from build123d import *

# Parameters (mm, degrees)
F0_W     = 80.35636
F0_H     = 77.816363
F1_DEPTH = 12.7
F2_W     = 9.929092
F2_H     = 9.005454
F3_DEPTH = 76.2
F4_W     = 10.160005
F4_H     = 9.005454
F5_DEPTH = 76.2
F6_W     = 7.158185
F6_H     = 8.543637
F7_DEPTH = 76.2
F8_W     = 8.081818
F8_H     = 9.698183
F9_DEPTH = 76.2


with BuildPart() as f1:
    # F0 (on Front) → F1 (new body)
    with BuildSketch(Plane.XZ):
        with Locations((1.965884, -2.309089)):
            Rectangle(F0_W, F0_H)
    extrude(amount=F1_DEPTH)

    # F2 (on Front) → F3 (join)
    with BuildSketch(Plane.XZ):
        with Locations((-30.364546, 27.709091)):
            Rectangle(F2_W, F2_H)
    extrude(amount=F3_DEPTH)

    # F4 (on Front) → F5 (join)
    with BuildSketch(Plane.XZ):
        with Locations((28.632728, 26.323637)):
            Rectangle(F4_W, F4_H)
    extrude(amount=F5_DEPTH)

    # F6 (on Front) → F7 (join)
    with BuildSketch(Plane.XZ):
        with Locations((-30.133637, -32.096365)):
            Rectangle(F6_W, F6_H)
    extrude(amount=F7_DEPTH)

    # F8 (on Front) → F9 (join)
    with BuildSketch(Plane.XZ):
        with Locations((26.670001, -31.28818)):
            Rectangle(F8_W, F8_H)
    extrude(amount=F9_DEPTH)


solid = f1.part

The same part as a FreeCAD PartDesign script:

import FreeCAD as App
import Part
import Sketcher
Q = App.Units.Quantity


def add_polygon(sketch, points):
    """Adds a closed chain of lines whose ends are joined by coincident constraints."""
    first, n = sketch.GeometryCount, len(points)
    for a, b in zip(points, points[1:] + points[:1]):
        sketch.addGeometry(Part.LineSegment(App.Vector(*a, 0), App.Vector(*b, 0)), False)
    for i in range(n):
        sketch.addConstraint(Sketcher.Constraint("Coincident", first + i, 2, first + (i + 1) % n, 1))

doc = App.newDocument("Part")
params = doc.addObject("Spreadsheet::Sheet", "Params")
for row, (alias, value) in enumerate([
    ("pad1_length", "0.5 in"),
    ("pad2_length", "3 in"),
    ("sketch3_width", "0.4000002 in"),
    ("pad3_length", "3 in"),
    ("pad4_length", "3 in"),
    ("pad5_length", "3 in"),
], start=1):
    params.set(f"A{row}", alias)
    params.set(f"B{row}", "=" + value)
    params.setAlias(f"B{row}", alias)

body = doc.addObject("PartDesign::Body", "Body")

sketch1 = body.newObject("Sketcher::SketchObject", "Sketch")
sketch1.AttachmentSupport = (doc.getObject("XZ_Plane"), [""])
sketch1.MapMode = "FlatFace"
add_polygon(sketch1, [(-38, 37), (-38, -41), (42, -41), (42, 37)])
sketch1.addConstraint(Sketcher.Constraint("Vertical", 0))
sketch1.addConstraint(Sketcher.Constraint("Horizontal", 1))
sketch1.addConstraint(Sketcher.Constraint("Vertical", 2))
sketch1.addConstraint(Sketcher.Constraint("Horizontal", 3))
sketch1.addConstraint(Sketcher.Constraint("DistanceX", 1, 1, 1, 2, 80.35636))
sketch1.addConstraint(Sketcher.Constraint("DistanceY", 0, 2, 0, 1, 77.816363))
sketch1.addConstraint(Sketcher.Constraint("DistanceY", 0, 2, -1, 1, 41.21727))
sketch1.addConstraint(Sketcher.Constraint("DistanceX", 0, 2, -1, 1, 38.212296))
pad1 = body.newObject("PartDesign::Pad", "Pad")
pad1.Profile = sketch1
pad1.setExpression("Length", "Params.pad1_length")

sketch2 = body.newObject("Sketcher::SketchObject", "Sketch001")
sketch2.AttachmentSupport = (doc.getObject("XZ_Plane"), [""])
sketch2.MapMode = "FlatFace"
add_polygon(sketch2, [(-35, 32), (-35, 23), (-25, 23), (-25, 32)])
sketch2.addConstraint(Sketcher.Constraint("Vertical", 0))
sketch2.addConstraint(Sketcher.Constraint("Horizontal", 1))
sketch2.addConstraint(Sketcher.Constraint("Vertical", 2))
sketch2.addConstraint(Sketcher.Constraint("Horizontal", 3))
sketch2.addConstraint(Sketcher.Constraint("DistanceX", 1, 2, -1, 1, Q("1 in")))
sketch2.addConstraint(Sketcher.Constraint("DistanceX", 1, 1, 1, 2, 9.929092))
sketch2.addConstraint(Sketcher.Constraint("DistanceY", 0, 2, 0, 1, 9.005454))
sketch2.addConstraint(Sketcher.Constraint("DistanceY", -1, 1, 0, 2, 23.206364))
pad2 = body.newObject("PartDesign::Pad", "Pad001")
pad2.Profile = sketch2
pad2.setExpression("Length", "Params.pad2_length")

sketch3 = body.newObject("Sketcher::SketchObject", "Sketch002")
sketch3.AttachmentSupport = (doc.getObject("XZ_Plane"), [""])
sketch3.MapMode = "FlatFace"
add_polygon(sketch3, [(24, 31), (24, 22), (34, 22), (34, 31)])
sketch3.addConstraint(Sketcher.Constraint("Vertical", 0))
sketch3.addConstraint(Sketcher.Constraint("Horizontal", 1))
sketch3.addConstraint(Sketcher.Constraint("Vertical", 2))
sketch3.addConstraint(Sketcher.Constraint("Horizontal", 3))
sketch3.addConstraint(Sketcher.Constraint("DistanceX", 1, 1, 1, 2, Q("0.4000002 in")))
sketch3.addConstraint(Sketcher.Constraint("DistanceY", 0, 2, 0, 1, 9.005454))
sketch3.addConstraint(Sketcher.Constraint("DistanceY", -1, 1, 0, 2, 21.82091))
sketch3.addConstraint(Sketcher.Constraint("DistanceX", -1, 1, 1, 2, 33.71273))
sketch3.setExpression("Constraints[8]", "Params.sketch3_width")
pad3 = body.newObject("PartDesign::Pad", "Pad002")
pad3.Profile = sketch3
pad3.setExpression("Length", "Params.pad3_length")

sketch4 = body.newObject("Sketcher::SketchObject", "Sketch003")
sketch4.AttachmentSupport = (doc.getObject("XZ_Plane"), [""])
sketch4.MapMode = "FlatFace"
add_polygon(sketch4, [(-34, -28), (-34, -36), (-27, -36), (-27, -28)])
sketch4.addConstraint(Sketcher.Constraint("Vertical", 0))
sketch4.addConstraint(Sketcher.Constraint("Horizontal", 1))
sketch4.addConstraint(Sketcher.Constraint("Vertical", 2))
sketch4.addConstraint(Sketcher.Constraint("Horizontal", 3))
sketch4.addConstraint(Sketcher.Constraint("DistanceX", 1, 1, 1, 2, 7.158185))
sketch4.addConstraint(Sketcher.Constraint("DistanceY", 0, 2, 0, 1, 8.543637))
sketch4.addConstraint(Sketcher.Constraint("DistanceX", 0, 2, -1, 1, 33.71273))
sketch4.addConstraint(Sketcher.Constraint("DistanceY", 0, 2, -1, 1, 36.368184))
pad4 = body.newObject("PartDesign::Pad", "Pad003")
pad4.Profile = sketch4
pad4.setExpression("Length", "Params.pad4_length")

sketch5 = body.newObject("Sketcher::SketchObject", "Sketch004")
sketch5.AttachmentSupport = (doc.getObject("XZ_Plane"), [""])
sketch5.MapMode = "FlatFace"
add_polygon(sketch5, [(23, -26), (23, -36), (31, -36), (31, -26)])
sketch5.addConstraint(Sketcher.Constraint("Vertical", 0))
sketch5.addConstraint(Sketcher.Constraint("Horizontal", 1))
sketch5.addConstraint(Sketcher.Constraint("Vertical", 2))
sketch5.addConstraint(Sketcher.Constraint("Horizontal", 3))
sketch5.addConstraint(Sketcher.Constraint("DistanceX", 1, 1, 1, 2, 8.081818))
sketch5.addConstraint(Sketcher.Constraint("DistanceY", 0, 2, 0, 1, 9.698183))
sketch5.addConstraint(Sketcher.Constraint("DistanceX", -1, 1, 0, 2, 22.629092))
sketch5.addConstraint(Sketcher.Constraint("DistanceY", 0, 2, -1, 1, 36.137271))
pad5 = body.newObject("PartDesign::Pad", "Pad004")
pad5.Profile = sketch5
pad5.setExpression("Length", "Params.pad5_length")

doc.recompute()
